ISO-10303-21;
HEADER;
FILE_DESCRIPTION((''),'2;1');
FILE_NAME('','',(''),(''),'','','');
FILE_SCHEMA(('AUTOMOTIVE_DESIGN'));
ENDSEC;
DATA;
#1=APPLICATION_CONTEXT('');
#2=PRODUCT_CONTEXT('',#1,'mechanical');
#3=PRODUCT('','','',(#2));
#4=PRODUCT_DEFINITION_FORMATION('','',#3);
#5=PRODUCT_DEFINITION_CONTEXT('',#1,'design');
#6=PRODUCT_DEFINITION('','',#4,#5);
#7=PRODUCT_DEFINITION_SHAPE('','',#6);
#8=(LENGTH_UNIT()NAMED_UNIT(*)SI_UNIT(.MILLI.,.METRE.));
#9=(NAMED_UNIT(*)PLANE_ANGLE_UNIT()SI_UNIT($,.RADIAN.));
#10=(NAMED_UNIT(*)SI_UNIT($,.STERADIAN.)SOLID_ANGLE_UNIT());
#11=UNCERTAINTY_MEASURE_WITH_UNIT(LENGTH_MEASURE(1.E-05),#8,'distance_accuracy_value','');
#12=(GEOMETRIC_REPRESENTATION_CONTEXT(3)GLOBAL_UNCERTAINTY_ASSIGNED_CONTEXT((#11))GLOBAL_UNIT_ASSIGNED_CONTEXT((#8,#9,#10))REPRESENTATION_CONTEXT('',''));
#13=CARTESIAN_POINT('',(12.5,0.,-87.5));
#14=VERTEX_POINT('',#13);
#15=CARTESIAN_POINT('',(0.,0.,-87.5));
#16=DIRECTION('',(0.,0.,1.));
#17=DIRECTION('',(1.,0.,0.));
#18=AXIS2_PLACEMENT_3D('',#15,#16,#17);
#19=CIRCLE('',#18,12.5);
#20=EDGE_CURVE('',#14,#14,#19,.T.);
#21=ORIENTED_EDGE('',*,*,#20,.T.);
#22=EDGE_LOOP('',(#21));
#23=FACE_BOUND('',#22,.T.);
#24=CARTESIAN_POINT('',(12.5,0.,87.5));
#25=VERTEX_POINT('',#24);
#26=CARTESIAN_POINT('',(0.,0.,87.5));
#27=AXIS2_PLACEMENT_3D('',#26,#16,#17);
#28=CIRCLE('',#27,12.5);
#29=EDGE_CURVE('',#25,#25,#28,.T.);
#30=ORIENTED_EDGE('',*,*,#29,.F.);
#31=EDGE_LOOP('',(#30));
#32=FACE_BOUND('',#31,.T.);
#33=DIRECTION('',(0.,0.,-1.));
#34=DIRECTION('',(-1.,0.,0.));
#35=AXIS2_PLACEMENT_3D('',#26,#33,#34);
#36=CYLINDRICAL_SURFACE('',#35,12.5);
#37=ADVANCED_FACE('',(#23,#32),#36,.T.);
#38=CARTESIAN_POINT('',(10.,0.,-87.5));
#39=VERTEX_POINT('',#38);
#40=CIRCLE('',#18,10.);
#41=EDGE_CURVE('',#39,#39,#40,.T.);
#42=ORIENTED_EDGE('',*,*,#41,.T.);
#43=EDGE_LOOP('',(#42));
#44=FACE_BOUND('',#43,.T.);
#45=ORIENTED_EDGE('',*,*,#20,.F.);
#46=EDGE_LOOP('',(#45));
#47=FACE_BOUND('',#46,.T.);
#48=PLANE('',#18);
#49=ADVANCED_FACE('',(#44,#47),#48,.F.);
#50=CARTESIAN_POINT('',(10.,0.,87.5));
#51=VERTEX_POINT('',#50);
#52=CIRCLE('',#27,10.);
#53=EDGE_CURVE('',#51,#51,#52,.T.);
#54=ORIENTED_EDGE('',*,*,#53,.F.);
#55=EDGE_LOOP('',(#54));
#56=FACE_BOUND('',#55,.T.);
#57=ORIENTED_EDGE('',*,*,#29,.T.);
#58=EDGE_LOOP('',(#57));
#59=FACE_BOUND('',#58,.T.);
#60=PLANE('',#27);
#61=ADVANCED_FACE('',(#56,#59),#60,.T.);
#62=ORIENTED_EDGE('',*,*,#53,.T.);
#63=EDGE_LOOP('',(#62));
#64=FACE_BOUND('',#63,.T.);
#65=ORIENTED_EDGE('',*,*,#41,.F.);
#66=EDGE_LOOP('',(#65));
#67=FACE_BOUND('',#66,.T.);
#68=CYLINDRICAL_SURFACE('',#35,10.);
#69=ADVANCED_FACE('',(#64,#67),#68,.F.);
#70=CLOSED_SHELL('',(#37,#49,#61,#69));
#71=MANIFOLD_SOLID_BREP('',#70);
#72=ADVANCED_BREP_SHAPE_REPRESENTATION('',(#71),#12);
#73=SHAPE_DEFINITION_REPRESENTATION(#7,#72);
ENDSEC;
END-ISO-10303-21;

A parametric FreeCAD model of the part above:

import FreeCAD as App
import Part
import Sketcher
Q = App.Units.Quantity

doc = App.newDocument("Part")
params = doc.addObject("Spreadsheet::Sheet", "Params")
for row, (alias, value) in enumerate([
    ("sketch1_diameter", "25 mm"),
    ("sketch1_diameter2", "20 mm"),
    ("pad1_length", "175 mm"),
], start=1):
    params.set(f"A{row}", alias)
    params.set(f"B{row}", "=" + value)
    params.setAlias(f"B{row}", alias)

body = doc.addObject("PartDesign::Body", "Body")

sketch1 = body.newObject("Sketcher::SketchObject", "Sketch")
sketch1.AttachmentSupport = (doc.getObject("XY_Plane"), [""])
sketch1.MapMode = "FlatFace"
sketch1.addGeometry(Part.Circle(App.Vector(0, 0, 0), App.Vector(0, 0, 1), 12.5), False)
sketch1.addGeometry(Part.Circle(App.Vector(0, 0, 0), App.Vector(0, 0, 1), 10), False)
sketch1.addConstraint(Sketcher.Constraint("Coincident", 0, 3, -1, 1))
sketch1.addConstraint(Sketcher.Constraint("Coincident", 1, 3, -1, 1))
sketch1.addConstraint(Sketcher.Constraint("Diameter", 0, Q("25 mm")))
sketch1.addConstraint(Sketcher.Constraint("Diameter", 1, Q("20 mm")))
sketch1.setExpression("Constraints[2]", "Params.sketch1_diameter")
sketch1.setExpression("Constraints[3]", "Params.sketch1_diameter2")
pad1 = body.newObject("PartDesign::Pad", "Pad")
pad1.Profile = sketch1
pad1.setExpression("Length", "Params.pad1_length")
pad1.Midplane = True

doc.recompute()
